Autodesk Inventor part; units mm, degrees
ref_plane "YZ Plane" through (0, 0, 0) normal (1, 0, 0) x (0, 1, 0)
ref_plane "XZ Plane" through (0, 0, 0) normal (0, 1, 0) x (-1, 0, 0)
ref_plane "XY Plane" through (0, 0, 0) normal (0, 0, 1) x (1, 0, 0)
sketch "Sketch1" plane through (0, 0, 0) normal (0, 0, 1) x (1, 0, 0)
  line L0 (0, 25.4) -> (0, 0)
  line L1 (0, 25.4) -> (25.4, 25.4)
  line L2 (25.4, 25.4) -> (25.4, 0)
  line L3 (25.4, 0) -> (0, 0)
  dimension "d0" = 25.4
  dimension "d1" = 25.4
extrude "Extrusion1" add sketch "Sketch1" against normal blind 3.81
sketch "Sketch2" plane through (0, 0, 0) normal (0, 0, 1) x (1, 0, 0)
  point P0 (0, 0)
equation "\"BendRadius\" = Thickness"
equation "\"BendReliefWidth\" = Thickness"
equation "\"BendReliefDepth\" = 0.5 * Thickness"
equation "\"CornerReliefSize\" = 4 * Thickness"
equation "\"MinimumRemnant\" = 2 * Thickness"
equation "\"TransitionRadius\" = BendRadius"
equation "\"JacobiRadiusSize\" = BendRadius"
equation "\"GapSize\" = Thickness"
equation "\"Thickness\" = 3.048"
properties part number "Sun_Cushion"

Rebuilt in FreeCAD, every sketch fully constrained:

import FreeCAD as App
import Part
import Sketcher

V = App.Vector
Q = App.Units.Quantity

doc = App.newDocument("Part")
body = doc.addObject("PartDesign::Body", "Body")

# Sketch on XY plane
sketch1 = body.newObject("Sketcher::SketchObject", "Sketch")
sketch1.AttachmentSupport = (doc.getObject("XY_Plane"), [""])
sketch1.MapMode = "FlatFace"
sketch1.addGeometry([
    Part.LineSegment(V(25.4, 25.4, 0), V(0, 25.4, 0)),
    Part.LineSegment(V(0, 25.4, 0), V(0, 0, 0)),
    Part.LineSegment(V(0, 0, 0), V(25.4, 0, 0)),
    Part.LineSegment(V(25.4, 0, 0), V(25.4, 25.4, 0)),
], False)
sketch1.addConstraint([
    Sketcher.Constraint("Coincident", 0, 2, 1, 1),
    Sketcher.Constraint("Coincident", 1, 2, 2, 1),
    Sketcher.Constraint("Coincident", 2, 2, 3, 1),
    Sketcher.Constraint("Coincident", 3, 2, 0, 1),
    Sketcher.Constraint("Horizontal", 0),
    Sketcher.Constraint("Vertical", 1),
    Sketcher.Constraint("Horizontal", 2),
    Sketcher.Constraint("Vertical", 3),
    Sketcher.Constraint("Coincident", 1, 2, -1, 1),
    Sketcher.Constraint("Equal", 2, 1),
    Sketcher.Constraint("DistanceX", 0, 2, 0, 1, Q("1 in")),
])
pad1 = body.newObject("PartDesign::Pad", "Pad")
pad1.Profile = sketch1
pad1.Length = Q("0.15 in")
pad1.Reversed = True

doc.recompute()
